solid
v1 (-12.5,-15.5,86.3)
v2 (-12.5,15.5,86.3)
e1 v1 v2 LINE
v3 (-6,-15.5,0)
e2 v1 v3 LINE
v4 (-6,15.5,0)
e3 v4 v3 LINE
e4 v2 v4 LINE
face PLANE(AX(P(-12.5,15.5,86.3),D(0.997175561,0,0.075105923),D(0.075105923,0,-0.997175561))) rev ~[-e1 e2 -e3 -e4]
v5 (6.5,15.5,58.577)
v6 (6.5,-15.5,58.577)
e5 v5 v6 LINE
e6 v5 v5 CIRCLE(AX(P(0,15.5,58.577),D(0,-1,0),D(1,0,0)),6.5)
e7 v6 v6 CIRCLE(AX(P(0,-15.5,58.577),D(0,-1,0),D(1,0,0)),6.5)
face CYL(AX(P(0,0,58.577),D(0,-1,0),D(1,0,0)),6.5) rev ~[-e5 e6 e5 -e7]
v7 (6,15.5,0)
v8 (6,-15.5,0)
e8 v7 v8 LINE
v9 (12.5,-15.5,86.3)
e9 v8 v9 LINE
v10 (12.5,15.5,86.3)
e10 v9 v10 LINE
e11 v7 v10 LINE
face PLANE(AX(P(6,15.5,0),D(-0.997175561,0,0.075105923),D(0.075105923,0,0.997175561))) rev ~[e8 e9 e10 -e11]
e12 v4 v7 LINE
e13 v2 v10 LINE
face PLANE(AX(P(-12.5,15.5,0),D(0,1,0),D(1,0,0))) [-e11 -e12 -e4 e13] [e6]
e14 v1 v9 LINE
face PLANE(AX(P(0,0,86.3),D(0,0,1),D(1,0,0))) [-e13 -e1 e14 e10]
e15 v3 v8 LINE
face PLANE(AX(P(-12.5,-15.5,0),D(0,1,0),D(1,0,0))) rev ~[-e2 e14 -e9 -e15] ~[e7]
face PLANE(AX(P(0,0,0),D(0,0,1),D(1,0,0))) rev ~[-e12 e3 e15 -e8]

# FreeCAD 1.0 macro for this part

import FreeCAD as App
import Part
import Sketcher


def add_polygon(sketch, points):
    """Adds a closed chain of lines whose ends are joined by coincident constraints."""
    first, n = sketch.GeometryCount, len(points)
    for a, b in zip(points, points[1:] + points[:1]):
        sketch.addGeometry(Part.LineSegment(App.Vector(*a, 0), App.Vector(*b, 0)), False)
    for i in range(n):
        sketch.addConstraint(Sketcher.Constraint("Coincident", first + i, 2, first + (i + 1) % n, 1))

doc = App.newDocument("Part")
params = doc.addObject("Spreadsheet::Sheet", "Params")
for row, (alias, value) in enumerate([
    ("sketch1_width", "25 mm"),
    ("sketch1_height", "31 mm"),
    ("pad1_length", "86.3 mm"),
    ("sketch2_diameter", "13 mm"),
    ("pocket1_length", "63 mm"),
    ("sketch3_width", "6.5 mm"),
    ("sketch3_height", "86.3 mm"),
], start=1):
    params.set(f"A{row}", alias)
    params.set(f"B{row}", "=" + value)
    params.setAlias(f"B{row}", alias)

body = doc.addObject("PartDesign::Body", "Body")

sketch1 = body.newObject("Sketcher::SketchObject", "Sketch")
sketch1.AttachmentSupport = (doc.getObject("XY_Plane"), [""])
sketch1.MapMode = "FlatFace"
add_polygon(sketch1, [(-12, 16), (-12, -16), (12, -16), (12, 16)])
sketch1.addConstraint([
    Sketcher.Constraint("Vertical", 0),
    Sketcher.Constraint("Horizontal", 1),
    Sketcher.Constraint("Vertical", 2),
    Sketcher.Constraint("Horizontal", 3),
    Sketcher.Constraint("Symmetric", 0, 2, 2, 2, -1, 1),
    Sketcher.Constraint("DistanceX", 1, 1, 1, 2, 25.0),
    Sketcher.Constraint("DistanceY", 0, 2, 0, 1, 31.0),
])
sketch1.setExpression("Constraints[9]", "Params.sketch1_width")
sketch1.setExpression("Constraints[10]", "Params.sketch1_height")
pad1 = body.newObject("PartDesign::Pad", "Pad")
pad1.Profile = sketch1
pad1.setExpression("Length", "Params.pad1_length")

sketch2 = body.newObject("Sketcher::SketchObject", "Sketch001")
sketch2.AttachmentSupport = (doc.getObject("XZ_Plane"), [""])
sketch2.MapMode = "FlatFace"
sketch2.addGeometry(Part.Circle(App.Vector(0, 59, 0), App.Vector(0, 0, 1), 6), False)
sketch2.addConstraint([
    Sketcher.Constraint("PointOnObject", 0, 3, -2),
    Sketcher.Constraint("Diameter", 0, 13.0),
    Sketcher.Constraint("DistanceY", -1, 1, 0, 3, 58.577),
])
sketch2.setExpression("Constraints[1]", "Params.sketch2_diameter")
pocket1 = body.newObject("PartDesign::Pocket", "Pocket")
pocket1.Profile = sketch2
pocket1.setExpression("Length", "Params.pocket1_length")
pocket1.Midplane = True

sketch3 = body.newObject("Sketcher::SketchObject", "Sketch002")
sketch3.AttachmentSupport = (doc.getObject("XZ_Plane"), [""])
sketch3.MapMode = "FlatFace"
sketch3.AttachmentOffset = App.Placement(App.Vector(0, 0, -15.5), App.Rotation())
add_polygon(sketch3, [(-12, 0), (-12, 86), (-6, 0)])
add_polygon(sketch3, [(6, 0), (12, 86), (12, 0)])
sketch3.addConstraint([
    Sketcher.Constraint("Vertical", 0),
    Sketcher.Constraint("Horizontal", 2),
    Sketcher.Constraint("Vertical", 4),
    Sketcher.Constraint("Horizontal", 5),
    Sketcher.Constraint("Symmetric", 2, 2, 4, 2, -1, 1),
    Sketcher.Constraint("Symmetric", 1, 2, 5, 2, -2),
    Sketcher.Constraint("Horizontal", 0, 2, 3, 2),
    Sketcher.Constraint("DistanceX", 2, 2, 2, 1, 6.5),
    Sketcher.Constraint("DistanceY", 0, 1, 0, 2, 86.3),
    Sketcher.Constraint("DistanceX", 1, 2, -1, 1, 6.0),
])
sketch3.setExpression("Constraints[13]", "Params.sketch3_width")
sketch3.setExpression("Constraints[14]", "Params.sketch3_height")
pocket2 = body.newObject("PartDesign::Pocket", "Pocket001")
pocket2.Profile = sketch3
pocket2.Type = "ThroughAll"
pocket2.Reversed = True

doc.recompute()
